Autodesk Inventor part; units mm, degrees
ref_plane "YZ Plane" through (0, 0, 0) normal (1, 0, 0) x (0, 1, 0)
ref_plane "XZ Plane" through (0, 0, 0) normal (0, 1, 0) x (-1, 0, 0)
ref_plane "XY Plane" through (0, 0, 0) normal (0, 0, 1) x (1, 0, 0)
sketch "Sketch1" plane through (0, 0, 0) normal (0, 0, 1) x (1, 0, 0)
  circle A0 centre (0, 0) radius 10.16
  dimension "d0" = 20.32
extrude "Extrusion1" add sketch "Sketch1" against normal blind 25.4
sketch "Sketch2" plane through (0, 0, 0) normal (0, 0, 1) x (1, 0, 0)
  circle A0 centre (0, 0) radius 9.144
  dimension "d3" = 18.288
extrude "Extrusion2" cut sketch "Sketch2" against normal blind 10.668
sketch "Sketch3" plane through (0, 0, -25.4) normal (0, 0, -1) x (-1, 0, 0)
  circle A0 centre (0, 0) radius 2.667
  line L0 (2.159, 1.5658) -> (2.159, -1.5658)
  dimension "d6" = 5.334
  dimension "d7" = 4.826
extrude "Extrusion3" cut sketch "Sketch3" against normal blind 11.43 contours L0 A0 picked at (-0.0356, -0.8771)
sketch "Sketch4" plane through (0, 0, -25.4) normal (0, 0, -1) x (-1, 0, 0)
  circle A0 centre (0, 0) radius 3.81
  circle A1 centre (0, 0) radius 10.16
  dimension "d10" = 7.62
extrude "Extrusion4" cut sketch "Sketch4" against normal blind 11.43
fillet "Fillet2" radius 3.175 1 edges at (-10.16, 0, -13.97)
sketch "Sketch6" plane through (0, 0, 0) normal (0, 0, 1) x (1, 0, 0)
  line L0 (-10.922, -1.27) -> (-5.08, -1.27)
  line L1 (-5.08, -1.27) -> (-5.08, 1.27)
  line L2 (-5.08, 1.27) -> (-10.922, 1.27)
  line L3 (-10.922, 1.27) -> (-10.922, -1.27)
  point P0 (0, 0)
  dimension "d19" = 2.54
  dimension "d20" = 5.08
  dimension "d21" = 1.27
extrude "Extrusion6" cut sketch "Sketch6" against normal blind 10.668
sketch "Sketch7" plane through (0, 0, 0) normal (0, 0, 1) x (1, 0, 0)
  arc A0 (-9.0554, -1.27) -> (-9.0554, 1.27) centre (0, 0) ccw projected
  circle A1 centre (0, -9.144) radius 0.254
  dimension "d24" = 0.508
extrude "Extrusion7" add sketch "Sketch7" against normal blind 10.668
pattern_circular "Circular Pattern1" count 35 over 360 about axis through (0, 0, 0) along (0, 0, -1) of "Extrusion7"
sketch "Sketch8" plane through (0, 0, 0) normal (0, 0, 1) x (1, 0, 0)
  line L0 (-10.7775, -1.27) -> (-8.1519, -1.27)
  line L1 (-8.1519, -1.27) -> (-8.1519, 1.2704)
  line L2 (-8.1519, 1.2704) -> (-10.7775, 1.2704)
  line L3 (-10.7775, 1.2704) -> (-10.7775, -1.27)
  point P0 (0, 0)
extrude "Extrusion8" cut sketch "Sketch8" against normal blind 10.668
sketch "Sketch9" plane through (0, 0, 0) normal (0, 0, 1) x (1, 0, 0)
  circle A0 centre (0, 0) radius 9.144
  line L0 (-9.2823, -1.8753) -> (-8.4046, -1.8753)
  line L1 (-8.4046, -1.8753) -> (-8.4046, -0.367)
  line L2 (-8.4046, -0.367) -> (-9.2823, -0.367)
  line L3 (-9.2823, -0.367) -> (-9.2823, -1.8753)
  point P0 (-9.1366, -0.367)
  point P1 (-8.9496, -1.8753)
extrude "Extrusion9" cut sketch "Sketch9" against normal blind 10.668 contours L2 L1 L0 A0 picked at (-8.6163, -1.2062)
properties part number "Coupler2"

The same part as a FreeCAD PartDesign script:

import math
import FreeCAD as App
import Part
import Sketcher
Q = App.Units.Quantity


def edges_at(feature, points):
    """Names of the edges that pass closest to the given points."""
    edges = feature.Shape.Edges
    near = lambda p: min(range(len(edges)), key=lambda i: edges[i].distToShape(Part.Vertex(*p))[0])
    return sorted({f"Edge{near(p) + 1}" for p in points})


def add_polygon(sketch, points):
    """Adds a closed chain of lines whose ends are joined by coincident constraints."""
    first, n = sketch.GeometryCount, len(points)
    for a, b in zip(points, points[1:] + points[:1]):
        sketch.addGeometry(Part.LineSegment(App.Vector(*a, 0), App.Vector(*b, 0)), False)
    for i in range(n):
        sketch.addConstraint(Sketcher.Constraint("Coincident", first + i, 2, first + (i + 1) % n, 1))

doc = App.newDocument("Part")
params = doc.addObject("Spreadsheet::Sheet", "Params")
for row, (alias, value) in enumerate([
    ("sketch1_diameter", "0.8 in"),
    ("pad1_length", "1 in"),
    ("sketch2_diameter", "0.72 in"),
    ("pocket1_length", "0.42 in"),
    ("sketch3_radius", "0.105 in"),
    ("pocket2_length", "0.45 in"),
    ("sketch4_diameter", "0.3 in"),
    ("sketch4_diameter2", "0.8 in"),
    ("pocket3_length", "0.45 in"),
    ("fillet_radius", "0.125 in"),
    ("sketch5_height", "0.1 in"),
    ("sketch5_width", "0.23 in"),
    ("pocket4_length", "0.42 in"),
    ("sketch6_diameter", "0.02 in"),
    ("pad2_length", "0.42 in"),
    ("pocket5_length", "0.42 in"),
    ("sketch8_radius", "0.36 in"),
    ("pocket6_length", "0.42 in"),
], start=1):
    params.set(f"A{row}", alias)
    params.set(f"B{row}", "=" + value)
    params.setAlias(f"B{row}", alias)

body = doc.addObject("PartDesign::Body", "Body")

# Sketch on XY plane
sketch1 = doc.addObject("Sketcher::SketchObject", "Sketch")
body.addObject(sketch1)
sketch1.AttachmentSupport = (doc.XY_Plane, [""])
sketch1.MapMode = "FlatFace"
sketch1.addGeometry(Part.Circle(App.Vector(0, 0, 0), App.Vector(0, 0, 1), 10.16), False)
sketch1.addConstraint(Sketcher.Constraint("Coincident", 0, 3, -1, 1))
sketch1.addConstraint(Sketcher.Constraint("Diameter", 0, Q("0.8 in")))
sketch1.setExpression("Constraints[1]", "Params.sketch1_diameter")
pad1 = doc.addObject("PartDesign::Pad", "Pad")
body.addObject(pad1)
pad1.Profile = sketch1
pad1.setExpression("Length", "Params.pad1_length")
pad1.Reversed = True

# Sketch on XY plane
sketch2 = doc.addObject("Sketcher::SketchObject", "Sketch001")
body.addObject(sketch2)
sketch2.AttachmentSupport = (doc.XY_Plane, [""])
sketch2.MapMode = "FlatFace"
sketch2.addGeometry(Part.Circle(App.Vector(0, 0, 0), App.Vector(0, 0, 1), 9.144), False)
sketch2.addConstraint(Sketcher.Constraint("Coincident", 0, 3, -1, 1))
sketch2.addConstraint(Sketcher.Constraint("Diameter", 0, Q("0.72 in")))
sketch2.setExpression("Constraints[1]", "Params.sketch2_diameter")
pocket1 = doc.addObject("PartDesign::Pocket", "Pocket")
body.addObject(pocket1)
pocket1.Profile = sketch2
pocket1.setExpression("Length", "Params.pocket1_length")

# Sketch on XY plane
sketch3 = doc.addObject("Sketcher::SketchObject", "Sketch002")
body.addObject(sketch3)
sketch3.AttachmentSupport = (doc.XY_Plane, [""])
sketch3.MapMode = "FlatFace"
sketch3.AttachmentOffset = App.Placement(App.Vector(0, 0, -1 * 25.4), App.Rotation())
sketch3.addGeometry(Part.LineSegment(App.Vector(-2.159, -1.5658, 0), App.Vector(-2.159, 1.5658, 0)), False)
sketch3.addGeometry(Part.ArcOfCircle(Part.Circle(App.Vector(0, 0, 0), App.Vector(0, 0, 1), 2.667), math.radians(-144.048757), math.radians(144.048757)), False)
sketch3.addConstraint(Sketcher.Constraint("Coincident", 0, 1, 1, 1))
sketch3.addConstraint(Sketcher.Constraint("Coincident", 1, 2, 0, 2))
sketch3.addConstraint(Sketcher.Constraint("Vertical", 0))
sketch3.addConstraint(Sketcher.Constraint("Coincident", 1, 3, -1, 1))
sketch3.addConstraint(Sketcher.Constraint("Radius", 1, Q("0.105 in")))
sketch3.addConstraint(Sketcher.Constraint("DistanceY", 0, 1, 0, 2, Q("0.1233 in")))
sketch3.setExpression("Constraints[4]", "Params.sketch3_radius")
pocket2 = doc.addObject("PartDesign::Pocket", "Pocket001")
body.addObject(pocket2)
pocket2.Profile = sketch3
pocket2.setExpression("Length", "Params.pocket2_length")
pocket2.Reversed = True

# Sketch on XY plane
sketch4 = doc.addObject("Sketcher::SketchObject", "Sketch003")
body.addObject(sketch4)
sketch4.AttachmentSupport = (doc.XY_Plane, [""])
sketch4.MapMode = "FlatFace"
sketch4.AttachmentOffset = App.Placement(App.Vector(0, 0, -1 * 25.4), App.Rotation())
sketch4.addGeometry(Part.Circle(App.Vector(0, 0, 0), App.Vector(0, 0, 1), 10.16), False)
sketch4.addGeometry(Part.Circle(App.Vector(0, 0, 0), App.Vector(0, 0, 1), 3.81), False)
sketch4.addConstraint(Sketcher.Constraint("Coincident", 0, 3, -1, 1))
sketch4.addConstraint(Sketcher.Constraint("Coincident", 1, 3, -1, 1))
sketch4.addConstraint(Sketcher.Constraint("Diameter", 1, Q("0.3 in")))
sketch4.addConstraint(Sketcher.Constraint("Diameter", 0, Q("0.8 in")))
sketch4.setExpression("Constraints[2]", "Params.sketch4_diameter")
sketch4.setExpression("Constraints[3]", "Params.sketch4_diameter2")
pocket3 = doc.addObject("PartDesign::Pocket", "Pocket002")
body.addObject(pocket3)
pocket3.Profile = sketch4
pocket3.setExpression("Length", "Params.pocket3_length")
pocket3.Reversed = True
doc.recompute()

fillet = doc.addObject("PartDesign::Fillet", "Fillet")
body.addObject(fillet)
fillet.Base = (pocket3, edges_at(pocket3, [(-10.16, 0, -13.97)]))
fillet.setExpression("Radius", "Params.fillet_radius")

# Sketch on XY plane
sketch5 = doc.addObject("Sketcher::SketchObject", "Sketch004")
body.addObject(sketch5)
sketch5.AttachmentSupport = (doc.XY_Plane, [""])
sketch5.MapMode = "FlatFace"
add_polygon(sketch5, [(-10.922, 1.27), (-10.922, -1.27), (-5.08, -1.27), (-5.08, 1.27)])  # lines 0-3
sketch5.addConstraint(Sketcher.Constraint("Vertical", 0))
sketch5.addConstraint(Sketcher.Constraint("Horizontal", 1))
sketch5.addConstraint(Sketcher.Constraint("Vertical", 2))
sketch5.addConstraint(Sketcher.Constraint("Horizontal", 3))
sketch5.addConstraint(Sketcher.Constraint("DistanceY", 0, 2, 0, 1, Q("0.1 in")))
sketch5.addConstraint(Sketcher.Constraint("DistanceX", 1, 2, -1, 1, Q("0.2 in")))
sketch5.addConstraint(Sketcher.Constraint("DistanceY", 0, 2, -1, 1, Q("0.05 in")))
sketch5.addConstraint(Sketcher.Constraint("DistanceX", 1, 1, 1, 2, Q("0.23 in")))
sketch5.setExpression("Constraints[8]", "Params.sketch5_height")
sketch5.setExpression("Constraints[11]", "Params.sketch5_width")
pocket4 = doc.addObject("PartDesign::Pocket", "Pocket003")
body.addObject(pocket4)
pocket4.Profile = sketch5
pocket4.setExpression("Length", "Params.pocket4_length")

# Sketch on XY plane
sketch6 = doc.addObject("Sketcher::SketchObject", "Sketch005")
body.addObject(sketch6)
sketch6.AttachmentSupport = (doc.XY_Plane, [""])
sketch6.MapMode = "FlatFace"
sketch6.addGeometry(Part.Circle(App.Vector(0, -9.144, 0), App.Vector(0, 0, 1), 0.254), False)
sketch6.addConstraint(Sketcher.Constraint("PointOnObject", 0, 3, -2))
sketch6.addConstraint(Sketcher.Constraint("Diameter", 0, Q("0.02 in")))
sketch6.addConstraint(Sketcher.Constraint("DistanceY", 0, 3, -1, 1, Q("0.36 in")))
sketch6.setExpression("Constraints[1]", "Params.sketch6_diameter")
pad2 = doc.addObject("PartDesign::Pad", "Pad001")
body.addObject(pad2)
pad2.Profile = sketch6
pad2.setExpression("Length", "Params.pad2_length")
pad2.Reversed = True
doc.recompute()

polarpattern = doc.addObject("PartDesign::PolarPattern", "PolarPattern")
body.addObject(polarpattern)
polarpattern.Originals = [pad2]
polarpattern.Axis = (doc.Z_Axis, [""])
polarpattern.Angle = 360
polarpattern.Occurrences = 35
body.Tip = polarpattern

# Sketch on XY plane
sketch7 = doc.addObject("Sketcher::SketchObject", "Sketch006")
body.addObject(sketch7)
sketch7.AttachmentSupport = (doc.XY_Plane, [""])
sketch7.MapMode = "FlatFace"
add_polygon(sketch7, [(-10.7775, 1.2704), (-10.7775, -1.27), (-8.1519, -1.27), (-8.1519, 1.2704)])  # lines 0-3
sketch7.addConstraint(Sketcher.Constraint("Vertical", 0))
sketch7.addConstraint(Sketcher.Constraint("Horizontal", 1))
sketch7.addConstraint(Sketcher.Constraint("Vertical", 2))
sketch7.addConstraint(Sketcher.Constraint("Horizontal", 3))
sketch7.addConstraint(Sketcher.Constraint("DistanceY", 0, 2, -1, 1, Q("0.05 in")))
sketch7.addConstraint(Sketcher.Constraint("DistanceX", 1, 1, 1, 2, 2.6256))
sketch7.addConstraint(Sketcher.Constraint("DistanceY", 0, 2, 0, 1, 2.5404))
sketch7.addConstraint(Sketcher.Constraint("DistanceX", 0, 2, -1, 1, Q("0.4243 in")))
pocket5 = doc.addObject("PartDesign::Pocket", "Pocket004")
body.addObject(pocket5)
pocket5.Profile = sketch7
pocket5.setExpression("Length", "Params.pocket5_length")

# Sketch on XY plane
sketch8 = doc.addObject("Sketcher::SketchObject", "Sketch007")
body.addObject(sketch8)
sketch8.AttachmentSupport = (doc.XY_Plane, [""])
sketch8.MapMode = "FlatFace"
sketch8.addGeometry(Part.LineSegment(App.Vector(-8.4046, -0.367, 0), App.Vector(-9.136632, -0.367, 0)), False)
sketch8.addGeometry(Part.ArcOfCircle(Part.Circle(App.Vector(0, 0, 0), App.Vector(0, 0, 1), 9.144), math.radians(-177.699781), math.radians(-168.165507)), False)
sketch8.addGeometry(Part.LineSegment(App.Vector(-8.949636, -1.8753, 0), App.Vector(-8.4046, -1.8753, 0)), False)
sketch8.addGeometry(Part.LineSegment(App.Vector(-8.4046, -1.8753, 0), App.Vector(-8.4046, -0.367, 0)), False)
sketch8.addConstraint(Sketcher.Constraint("Coincident", 0, 2, 1, 1))
sketch8.addConstraint(Sketcher.Constraint("Coincident", 1, 2, 2, 1))
sketch8.addConstraint(Sketcher.Constraint("Coincident", 2, 2, 3, 1))
sketch8.addConstraint(Sketcher.Constraint("Coincident", 3, 2, 0, 1))
sketch8.addConstraint(Sketcher.Constraint("Horizontal", 0))
sketch8.addConstraint(Sketcher.Constraint("Horizontal", 2))
sketch8.addConstraint(Sketcher.Constraint("Vertical", 3))
sketch8.addConstraint(Sketcher.Constraint("Coincident", 1, 3, -1, 1))
sketch8.addConstraint(Sketcher.Constraint("Radius", 1, Q("0.36 in")))
sketch8.addConstraint(Sketcher.Constraint("DistanceX", 0, 2, 0, 1, 0.732))
sketch8.addConstraint(Sketcher.Constraint("DistanceX", 2, 1, 2, 2, 0.545))
sketch8.addConstraint(Sketcher.Constraint("DistanceY", 3, 1, 3, 2, 1.5083))
sketch8.setExpression("Constraints[8]", "Params.sketch8_radius")
pocket6 = doc.addObject("PartDesign::Pocket", "Pocket005")
body.addObject(pocket6)
pocket6.Profile = sketch8
pocket6.setExpression("Length", "Params.pocket6_length")

doc.recompute()
